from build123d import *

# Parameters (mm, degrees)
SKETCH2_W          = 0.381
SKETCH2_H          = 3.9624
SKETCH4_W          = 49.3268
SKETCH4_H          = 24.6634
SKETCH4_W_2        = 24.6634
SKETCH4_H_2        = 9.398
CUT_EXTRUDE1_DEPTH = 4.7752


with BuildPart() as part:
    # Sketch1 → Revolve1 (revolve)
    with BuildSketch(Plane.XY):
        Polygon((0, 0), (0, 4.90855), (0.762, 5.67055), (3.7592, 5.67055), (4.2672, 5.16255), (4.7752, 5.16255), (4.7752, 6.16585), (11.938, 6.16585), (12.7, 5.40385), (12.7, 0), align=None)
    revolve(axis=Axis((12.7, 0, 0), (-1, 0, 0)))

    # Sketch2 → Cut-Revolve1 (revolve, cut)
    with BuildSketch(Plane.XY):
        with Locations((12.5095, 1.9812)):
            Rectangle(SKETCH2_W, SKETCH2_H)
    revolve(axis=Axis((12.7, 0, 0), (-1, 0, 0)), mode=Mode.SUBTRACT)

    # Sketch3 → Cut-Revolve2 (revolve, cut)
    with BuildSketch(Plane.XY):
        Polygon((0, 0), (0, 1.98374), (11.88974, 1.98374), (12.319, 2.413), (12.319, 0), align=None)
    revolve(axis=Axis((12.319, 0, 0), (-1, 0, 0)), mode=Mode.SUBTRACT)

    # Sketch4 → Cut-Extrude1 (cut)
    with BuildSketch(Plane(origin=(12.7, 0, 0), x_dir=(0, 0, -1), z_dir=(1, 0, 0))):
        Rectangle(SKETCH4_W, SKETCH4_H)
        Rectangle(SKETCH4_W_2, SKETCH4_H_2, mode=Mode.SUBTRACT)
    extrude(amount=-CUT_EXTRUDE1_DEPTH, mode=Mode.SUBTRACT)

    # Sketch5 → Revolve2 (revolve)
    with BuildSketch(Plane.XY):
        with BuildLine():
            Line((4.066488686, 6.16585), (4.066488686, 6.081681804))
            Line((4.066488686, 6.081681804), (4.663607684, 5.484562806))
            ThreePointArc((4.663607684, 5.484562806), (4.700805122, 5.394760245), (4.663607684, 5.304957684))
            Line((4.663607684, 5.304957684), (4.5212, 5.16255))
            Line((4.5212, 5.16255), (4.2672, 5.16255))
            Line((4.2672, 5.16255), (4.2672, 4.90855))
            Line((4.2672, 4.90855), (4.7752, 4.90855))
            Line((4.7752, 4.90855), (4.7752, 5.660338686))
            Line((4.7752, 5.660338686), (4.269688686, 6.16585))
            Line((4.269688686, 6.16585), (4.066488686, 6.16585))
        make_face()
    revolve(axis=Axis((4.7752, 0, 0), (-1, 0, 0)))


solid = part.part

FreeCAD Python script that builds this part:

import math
import FreeCAD as App
import Part
import Sketcher

V = App.Vector
Q = App.Units.Quantity


def add_polygon(sketch, points):
    """Adds a closed chain of lines whose ends are joined by coincident constraints."""
    first, n = sketch.GeometryCount, len(points)
    for a, b in zip(points, points[1:] + points[:1]):
        sketch.addGeometry(Part.LineSegment(App.Vector(*a, 0), App.Vector(*b, 0)), False)
    for i in range(n):
        sketch.addConstraint(Sketcher.Constraint("Coincident", first + i, 2, first + (i + 1) % n, 1))

doc = App.newDocument("Part")
params = doc.addObject("Spreadsheet::Sheet", "Params")
for row, (alias, value) in enumerate([
    ("sketch1_width", "0.5 in"),
    ("sketch1_width2", "0.02 in"),
    ("sketch1_width3", "0.282 in"),
    ("sketch1_width4", "0.118 in"),
    ("revolution_angle", "360 deg"),
    ("sketch2_width", "0.015 in"),
    ("sketch2_height", "0.156 in"),
    ("groove_angle", "360 deg"),
    ("sketch3_width", "0.485 in"),
    ("sketch3_height", "0.095 in"),
    ("groove2_angle", "360 deg"),
    ("sketch4_width", "0.37 in"),
    ("sketch4_width2", "0.971 in"),
    ("sketch4_height", "1.942 in"),
    ("pocket1_length", "0.188 in"),
    ("sketch5_radius", "0.005 in"),
    ("sketch5_width", "0.01 in"),
    ("sketch5_width2", "0.02 in"),
    ("sketch5_width3", "0.008 in"),
    ("revolution2_angle", "360 deg"),
], start=1):
    params.set(f"A{row}", alias)
    params.set(f"B{row}", "=" + value)
    params.setAlias(f"B{row}", alias)

body = doc.addObject("PartDesign::Body", "Body")

sketch1 = doc.addObject("Sketcher::SketchObject", "Sketch")
body.addObject(sketch1)
sketch1.AttachmentSupport = (doc.XY_Plane, [""])
sketch1.MapMode = "FlatFace"
add_polygon(sketch1, [(0, 4.9), (0, 0), (12.7, 0), (12.7, 5.4), (11.9, 6.2), (4.8, 6.2), (4.8, 5.2), (4.3, 5.2), (3.8, 5.7), (0.8, 5.7)])
sketch1.addConstraint(Sketcher.Constraint("Vertical", 0))
sketch1.addConstraint(Sketcher.Constraint("Horizontal", 1))
sketch1.addConstraint(Sketcher.Constraint("Vertical", 2))
sketch1.addConstraint(Sketcher.Constraint("Horizontal", 4))
sketch1.addConstraint(Sketcher.Constraint("Vertical", 5))
sketch1.addConstraint(Sketcher.Constraint("Horizontal", 6))
sketch1.addConstraint(Sketcher.Constraint("Horizontal", 8))
sketch1.addConstraint(Sketcher.Constraint("Coincident", 0, 2, -1, 1))
sketch1.addConstraint(Sketcher.Constraint("Parallel", 3, 7))
sketch1.addConstraint(Sketcher.Constraint("Perpendicular", 7, 9))
sketch1.addConstraint(Sketcher.Constraint("Equal", 3, 9))
sketch1.addConstraint(Sketcher.Constraint("DistanceX", 1, 1, 1, 2, Q("0.5 in")))
sketch1.addConstraint(Sketcher.Constraint("Angle", 3, Q("135 deg")))
sketch1.addConstraint(Sketcher.Constraint("DistanceX", 6, 2, 6, 1, Q("0.02 in")))
sketch1.addConstraint(Sketcher.Constraint("DistanceX", 4, 2, 4, 1, Q("0.282 in")))
sketch1.addConstraint(Sketcher.Constraint("DistanceX", 8, 2, 8, 1, Q("0.118 in")))
sketch1.addConstraint(Sketcher.Constraint("DistanceX", -1, 1, 3, 2, Q("0.47 in")))
sketch1.addConstraint(Sketcher.Constraint("DistanceY", 5, 2, 5, 1, Q("0.0395 in")))
sketch1.addConstraint(Sketcher.Constraint("DistanceY", 0, 2, 0, 1, Q("4.90855 mm")))
sketch1.setExpression("Constraints[21]", "Params.sketch1_width")
sketch1.setExpression("Constraints[23]", "Params.sketch1_width2")
sketch1.setExpression("Constraints[24]", "Params.sketch1_width3")
sketch1.setExpression("Constraints[25]", "Params.sketch1_width4")
revolution = doc.addObject("PartDesign::Revolution", "Revolution")
body.addObject(revolution)
revolution.Profile = sketch1
revolution.ReferenceAxis = (sketch1, ["H_Axis"])
revolution.setExpression("Angle", "Params.revolution_angle")

sketch2 = doc.addObject("Sketcher::SketchObject", "Sketch001")
body.addObject(sketch2)
sketch2.AttachmentSupport = (doc.XY_Plane, [""])
sketch2.MapMode = "FlatFace"
add_polygon(sketch2, [(12.32, 3.96), (12.32, 0), (12.7, 0), (12.7, 3.96)])
sketch2.addConstraint(Sketcher.Constraint("Vertical", 0))
sketch2.addConstraint(Sketcher.Constraint("Horizontal", 1))
sketch2.addConstraint(Sketcher.Constraint("Vertical", 2))
sketch2.addConstraint(Sketcher.Constraint("Horizontal", 3))
sketch2.addConstraint(Sketcher.Constraint("PointOnObject", 0, 2, -1))
sketch2.addConstraint(Sketcher.Constraint("DistanceX", -1, 1, 1, 2, Q("0.5 in")))
sketch2.addConstraint(Sketcher.Constraint("DistanceX", 1, 1, 1, 2, Q("0.015 in")))
sketch2.addConstraint(Sketcher.Constraint("DistanceY", 0, 2, 0, 1, Q("0.156 in")))
sketch2.setExpression("Constraints[10]", "Params.sketch2_width")
sketch2.setExpression("Constraints[11]", "Params.sketch2_height")
groove = doc.addObject("PartDesign::Groove", "Groove")
body.addObject(groove)
groove.Profile = sketch2
groove.ReferenceAxis = (sketch2, ["H_Axis"])
groove.setExpression("Angle", "Params.groove_angle")

sketch3 = doc.addObject("Sketcher::SketchObject", "Sketch002")
body.addObject(sketch3)
sketch3.AttachmentSupport = (doc.XY_Plane, [""])
sketch3.MapMode = "FlatFace"
add_polygon(sketch3, [(0, 2), (0, 0), (12.3, 0), (12.3, 2.4), (11.9, 2)])
sketch3.addConstraint(Sketcher.Constraint("Vertical", 0))
sketch3.addConstraint(Sketcher.Constraint("Horizontal", 1))
sketch3.addConstraint(Sketcher.Constraint("Vertical", 2))
sketch3.addConstraint(Sketcher.Constraint("Horizontal", 4))
sketch3.addConstraint(Sketcher.Constraint("Coincident", 0, 2, -1, 1))
sketch3.addConstraint(Sketcher.Constraint("Angle", 3, Q("-135 deg")))
sketch3.addConstraint(Sketcher.Constraint("DistanceX", 1, 1, 1, 2, Q("0.485 in")))
sketch3.addConstraint(Sketcher.Constraint("DistanceY", 2, 1, 2, 2, Q("0.095 in")))
sketch3.addConstraint(Sketcher.Constraint("DistanceX", 4, 2, 4, 1, Q("0.4681 in")))
sketch3.setExpression("Constraints[11]", "Params.sketch3_width")
sketch3.setExpression("Constraints[12]", "Params.sketch3_height")
groove2 = doc.addObject("PartDesign::Groove", "Groove001")
body.addObject(groove2)
groove2.Profile = sketch3
groove2.ReferenceAxis = (sketch3, ["H_Axis"])
groove2.setExpression("Angle", "Params.groove2_angle")

sketch4 = doc.addObject("Sketcher::SketchObject", "Sketch003")
body.addObject(sketch4)
sketch4.AttachmentSupport = (doc.YZ_Plane, [""])
sketch4.MapMode = "FlatFace"
sketch4.AttachmentOffset = App.Placement(V(0, 0, 0.5 * 25.4), App.Rotation())
add_polygon(sketch4, [(12, 25), (-12, 25), (-12, -25), (12, -25)])
add_polygon(sketch4, [(-5, -12), (-5, 12), (5, 12), (5, -12)])
sketch4.addConstraint(Sketcher.Constraint("Horizontal", 0))
sketch4.addConstraint(Sketcher.Constraint("Vertical", 1))
sketch4.addConstraint(Sketcher.Constraint("Horizontal", 2))
sketch4.addConstraint(Sketcher.Constraint("Vertical", 3))
sketch4.addConstraint(Sketcher.Constraint("Vertical", 4))
sketch4.addConstraint(Sketcher.Constraint("Horizontal", 5))
sketch4.addConstraint(Sketcher.Constraint("Vertical", 6))
sketch4.addConstraint(Sketcher.Constraint("Horizontal", 7))
sketch4.addConstraint(Sketcher.Constraint("Symmetric", 0, 2, 2, 2, -1, 1))
sketch4.addConstraint(Sketcher.Constraint("Symmetric", 4, 2, 6, 2, -1, 1))
sketch4.addConstraint(Sketcher.Constraint("Equal", 2, 4))
sketch4.addConstraint(Sketcher.Constraint("DistanceX", 5, 1, 5, 2, Q("0.37 in")))
sketch4.addConstraint(Sketcher.Constraint("DistanceX", 0, 2, 0, 1, Q("0.971 in")))
sketch4.addConstraint(Sketcher.Constraint("DistanceY", 1, 2, 1, 1, Q("1.942 in")))
sketch4.setExpression("Constraints[19]", "Params.sketch4_width")
sketch4.setExpression("Constraints[20]", "Params.sketch4_width2")
sketch4.setExpression("Constraints[21]", "Params.sketch4_height")
pocket1 = doc.addObject("PartDesign::Pocket", "Pocket")
body.addObject(pocket1)
pocket1.Profile = sketch4
pocket1.setExpression("Length", "Params.pocket1_length")

sketch5 = doc.addObject("Sketcher::SketchObject", "Sketch004")
body.addObject(sketch5)
sketch5.AttachmentSupport = (doc.XY_Plane, [""])
sketch5.MapMode = "FlatFace"
sketch5.addGeometry(Part.LineSegment(V(4.07, 6.17, 0), V(4.07, 6.08, 0)), False)
sketch5.addGeometry(Part.LineSegment(V(4.07, 6.08, 0), V(4.66, 5.48, 0)), False)
sketch5.addGeometry(Part.ArcOfCircle(Part.Circle(V(4.57, 5.39, 0), V(0, 0, 1), 0.13), math.radians(-45), math.radians(45)), False)
sketch5.addGeometry(Part.LineSegment(V(4.66, 5.3, 0), V(4.52, 5.16, 0)), False)
sketch5.addGeometry(Part.LineSegment(V(4.52, 5.16, 0), V(4.27, 5.16, 0)), False)
sketch5.addGeometry(Part.LineSegment(V(4.27, 5.16, 0), V(4.27, 4.91, 0)), False)
sketch5.addGeometry(Part.LineSegment(V(4.27, 4.91, 0), V(4.78, 4.91, 0)), False)
sketch5.addGeometry(Part.LineSegment(V(4.78, 4.91, 0), V(4.78, 5.66, 0)), False)
sketch5.addGeometry(Part.LineSegment(V(4.78, 5.66, 0), V(4.27, 6.17, 0)), False)
sketch5.addGeometry(Part.LineSegment(V(4.27, 6.17, 0), V(4.07, 6.17, 0)), False)
sketch5.addConstraint(Sketcher.Constraint("Coincident", 0, 2, 1, 1))
sketch5.addConstraint(Sketcher.Constraint("Tangent", 1, 2, 2, 2))
sketch5.addConstraint(Sketcher.Constraint("Tangent", 2, 1, 3, 1))
sketch5.addConstraint(Sketcher.Constraint("Coincident", 3, 2, 4, 1))
sketch5.addConstraint(Sketcher.Constraint("Coincident", 4, 2, 5, 1))
sketch5.addConstraint(Sketcher.Constraint("Coincident", 5, 2, 6, 1))
sketch5.addConstraint(Sketcher.Constraint("Coincident", 6, 2, 7, 1))
sketch5.addConstraint(Sketcher.Constraint("Coincident", 7, 2, 8, 1))
sketch5.addConstraint(Sketcher.Constraint("Coincident", 8, 2, 9, 1))
sketch5.addConstraint(Sketcher.Constraint("Coincident", 9, 2, 0, 1))
sketch5.addConstraint(Sketcher.Constraint("Vertical", 0))
sketch5.addConstraint(Sketcher.Constraint("Horizontal", 4))
sketch5.addConstraint(Sketcher.Constraint("Vertical", 5))
sketch5.addConstraint(Sketcher.Constraint("Horizontal", 6))
sketch5.addConstraint(Sketcher.Constraint("Vertical", 7))
sketch5.addConstraint(Sketcher.Constraint("Horizontal", 9))
sketch5.addConstraint(Sketcher.Constraint("Perpendicular", 1, 3))
sketch5.addConstraint(Sketcher.Constraint("Perpendicular", 3, 8))
sketch5.addConstraint(Sketcher.Constraint("Vertical", 1, 2, 2, 1))
sketch5.addConstraint(Sketcher.Constraint("Equal", 4, 5))
sketch5.addConstraint(Sketcher.Constraint("Radius", 2, Q("0.005 in")))
sketch5.addConstraint(Sketcher.Constraint("DistanceX", 4, 2, 4, 1, Q("0.01 in")))
sketch5.addConstraint(Sketcher.Constraint("DistanceX", 6, 1, 6, 2, Q("0.02 in")))
sketch5.addConstraint(Sketcher.Constraint("DistanceX", 9, 2, 9, 1, Q("0.008 in")))
sketch5.addConstraint(Sketcher.Constraint("DistanceX", -1, 1, 3, 2, Q("0.178 in")))
sketch5.addConstraint(Sketcher.Constraint("Distance", 8, Q("0.714901 mm")))
sketch5.addConstraint(Sketcher.Constraint("DistanceY", 0, 2, 0, 1, Q("0.084168 mm")))
sketch5.addConstraint(Sketcher.Constraint("DistanceY", 7, 1, 7, 2, Q("0.751789 mm")))
sketch5.addConstraint(Sketcher.Constraint("DistanceY", -1, 1, 2, 3, Q("5.39476 mm")))
sketch5.setExpression("Constraints[20]", "Params.sketch5_radius")
sketch5.setExpression("Constraints[21]", "Params.sketch5_width")
sketch5.setExpression("Constraints[22]", "Params.sketch5_width2")
sketch5.setExpression("Constraints[23]", "Params.sketch5_width3")
revolution2 = doc.addObject("PartDesign::Revolution", "Revolution001")
body.addObject(revolution2)
revolution2.Profile = sketch5
revolution2.ReferenceAxis = (sketch5, ["H_Axis"])
revolution2.setExpression("Angle", "Params.revolution2_angle")

doc.recompute()
